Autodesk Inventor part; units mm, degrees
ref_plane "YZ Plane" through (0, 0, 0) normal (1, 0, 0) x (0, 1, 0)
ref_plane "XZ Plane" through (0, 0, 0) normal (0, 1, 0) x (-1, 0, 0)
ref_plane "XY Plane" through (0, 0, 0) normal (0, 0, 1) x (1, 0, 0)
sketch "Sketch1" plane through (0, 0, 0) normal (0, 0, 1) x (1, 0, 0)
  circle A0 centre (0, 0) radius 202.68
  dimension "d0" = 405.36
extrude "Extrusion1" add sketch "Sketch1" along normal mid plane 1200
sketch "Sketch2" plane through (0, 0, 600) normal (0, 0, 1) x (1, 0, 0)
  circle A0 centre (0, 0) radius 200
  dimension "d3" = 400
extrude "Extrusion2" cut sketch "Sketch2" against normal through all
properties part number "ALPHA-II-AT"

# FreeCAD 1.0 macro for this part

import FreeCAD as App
import Part
import Sketcher

V = App.Vector
Q = App.Units.Quantity

doc = App.newDocument("Part")
body = doc.addObject("PartDesign::Body", "Body")

# Sketch on XY plane
sketch1 = body.newObject("Sketcher::SketchObject", "Sketch")
sketch1.AttachmentSupport = (doc.getObject("XY_Plane"), [""])
sketch1.MapMode = "FlatFace"
sketch1.addGeometry(Part.Circle(V(0, 0, 0), V(0, 0, 1), 203), False)
sketch1.addConstraint(Sketcher.Constraint("Coincident", 0, 3, -1, 1))
sketch1.addConstraint(Sketcher.Constraint("Diameter", 0, Q("405.36 mm")))
pad1 = body.newObject("PartDesign::Pad", "Pad")
pad1.Profile = sketch1
pad1.Length = 1200
pad1.Midplane = True

# Sketch on XY plane
sketch2 = body.newObject("Sketcher::SketchObject", "Sketch001")
sketch2.AttachmentSupport = (doc.getObject("XY_Plane"), [""])
sketch2.MapMode = "FlatFace"
sketch2.AttachmentOffset = App.Placement(V(0, 0, 600), App.Rotation())
sketch2.addGeometry(Part.Circle(V(0, 0, 0), V(0, 0, 1), 200), False)
sketch2.addConstraint(Sketcher.Constraint("Coincident", 0, 3, -1, 1))
sketch2.addConstraint(Sketcher.Constraint("Diameter", 0, Q("400 mm")))
pocket1 = body.newObject("PartDesign::Pocket", "Pocket")
pocket1.Profile = sketch2
pocket1.Type = "ThroughAll"

doc.recompute()
